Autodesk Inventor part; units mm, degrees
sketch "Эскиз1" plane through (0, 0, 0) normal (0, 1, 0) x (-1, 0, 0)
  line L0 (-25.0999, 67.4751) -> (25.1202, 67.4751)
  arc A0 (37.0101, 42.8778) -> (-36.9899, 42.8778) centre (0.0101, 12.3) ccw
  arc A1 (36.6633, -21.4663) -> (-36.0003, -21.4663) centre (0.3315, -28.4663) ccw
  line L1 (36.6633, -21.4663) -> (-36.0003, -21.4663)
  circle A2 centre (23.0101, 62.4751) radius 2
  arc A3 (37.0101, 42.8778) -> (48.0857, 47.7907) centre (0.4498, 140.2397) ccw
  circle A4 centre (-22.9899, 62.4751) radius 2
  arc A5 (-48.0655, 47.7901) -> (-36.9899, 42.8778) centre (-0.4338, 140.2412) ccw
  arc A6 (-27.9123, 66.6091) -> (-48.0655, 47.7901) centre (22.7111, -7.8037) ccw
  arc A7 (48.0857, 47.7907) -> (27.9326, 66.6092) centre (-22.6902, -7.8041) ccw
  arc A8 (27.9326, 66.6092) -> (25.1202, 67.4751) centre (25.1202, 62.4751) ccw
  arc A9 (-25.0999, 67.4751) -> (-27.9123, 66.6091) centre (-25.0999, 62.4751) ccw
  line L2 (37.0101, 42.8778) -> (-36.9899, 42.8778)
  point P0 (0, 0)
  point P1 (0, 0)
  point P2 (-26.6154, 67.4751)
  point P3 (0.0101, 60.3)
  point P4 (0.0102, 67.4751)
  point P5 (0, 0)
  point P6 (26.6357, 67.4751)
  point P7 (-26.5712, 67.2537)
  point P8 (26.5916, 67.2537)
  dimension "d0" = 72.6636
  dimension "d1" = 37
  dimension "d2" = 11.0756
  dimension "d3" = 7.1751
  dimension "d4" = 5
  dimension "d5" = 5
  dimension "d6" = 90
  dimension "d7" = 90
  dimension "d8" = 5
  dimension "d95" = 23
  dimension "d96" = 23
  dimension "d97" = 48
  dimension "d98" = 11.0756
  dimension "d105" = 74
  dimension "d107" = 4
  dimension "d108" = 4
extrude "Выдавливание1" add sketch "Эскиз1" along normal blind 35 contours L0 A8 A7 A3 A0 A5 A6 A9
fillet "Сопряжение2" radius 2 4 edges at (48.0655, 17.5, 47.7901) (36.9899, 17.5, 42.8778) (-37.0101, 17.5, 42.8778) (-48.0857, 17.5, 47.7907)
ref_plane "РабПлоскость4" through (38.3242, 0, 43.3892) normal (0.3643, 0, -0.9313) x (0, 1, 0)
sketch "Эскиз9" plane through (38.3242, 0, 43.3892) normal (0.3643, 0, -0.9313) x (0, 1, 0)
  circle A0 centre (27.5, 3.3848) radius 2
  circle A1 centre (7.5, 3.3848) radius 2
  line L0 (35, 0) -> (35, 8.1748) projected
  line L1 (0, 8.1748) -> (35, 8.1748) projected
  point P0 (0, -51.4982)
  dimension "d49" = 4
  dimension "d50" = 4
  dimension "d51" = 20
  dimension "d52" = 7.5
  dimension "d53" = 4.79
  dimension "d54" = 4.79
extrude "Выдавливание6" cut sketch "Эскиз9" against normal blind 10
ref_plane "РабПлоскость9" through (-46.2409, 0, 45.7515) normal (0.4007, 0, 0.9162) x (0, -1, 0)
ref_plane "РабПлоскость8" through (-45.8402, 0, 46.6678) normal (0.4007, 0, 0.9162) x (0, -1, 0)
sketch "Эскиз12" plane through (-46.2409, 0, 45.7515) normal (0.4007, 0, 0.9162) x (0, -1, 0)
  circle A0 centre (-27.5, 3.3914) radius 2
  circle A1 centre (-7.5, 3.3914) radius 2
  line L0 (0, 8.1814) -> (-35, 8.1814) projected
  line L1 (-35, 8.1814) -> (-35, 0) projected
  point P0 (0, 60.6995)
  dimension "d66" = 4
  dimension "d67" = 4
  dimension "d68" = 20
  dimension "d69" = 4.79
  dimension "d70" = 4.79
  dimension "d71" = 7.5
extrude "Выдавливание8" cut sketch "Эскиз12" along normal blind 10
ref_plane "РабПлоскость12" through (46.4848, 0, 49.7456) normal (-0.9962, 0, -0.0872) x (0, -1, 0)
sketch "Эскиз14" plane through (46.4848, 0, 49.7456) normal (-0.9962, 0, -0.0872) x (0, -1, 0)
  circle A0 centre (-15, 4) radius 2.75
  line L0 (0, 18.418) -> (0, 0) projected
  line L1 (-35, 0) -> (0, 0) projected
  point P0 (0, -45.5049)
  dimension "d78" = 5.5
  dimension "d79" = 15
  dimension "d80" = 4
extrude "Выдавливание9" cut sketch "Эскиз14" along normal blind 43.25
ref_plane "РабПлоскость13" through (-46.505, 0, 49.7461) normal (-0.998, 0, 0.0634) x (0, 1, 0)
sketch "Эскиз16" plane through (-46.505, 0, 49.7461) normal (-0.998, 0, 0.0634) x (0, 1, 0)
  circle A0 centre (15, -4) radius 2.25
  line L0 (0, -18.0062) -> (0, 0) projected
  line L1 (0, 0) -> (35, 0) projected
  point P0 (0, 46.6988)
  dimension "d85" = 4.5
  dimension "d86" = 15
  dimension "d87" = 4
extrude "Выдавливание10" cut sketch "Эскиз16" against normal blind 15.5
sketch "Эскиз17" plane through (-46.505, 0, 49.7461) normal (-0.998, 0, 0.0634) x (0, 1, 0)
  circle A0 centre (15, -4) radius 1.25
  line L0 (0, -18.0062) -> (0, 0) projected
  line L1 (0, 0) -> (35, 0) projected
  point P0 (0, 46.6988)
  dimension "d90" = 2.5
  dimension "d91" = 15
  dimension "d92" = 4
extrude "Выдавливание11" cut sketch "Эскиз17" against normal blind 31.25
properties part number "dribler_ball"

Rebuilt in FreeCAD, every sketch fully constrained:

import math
import FreeCAD as App
import Part
import Sketcher

V = App.Vector
Q = App.Units.Quantity


def edges_at(feature, points):
    """Names of the edges that pass closest to the given points."""
    edges = feature.Shape.Edges
    near = lambda p: min(range(len(edges)), key=lambda i: edges[i].distToShape(Part.Vertex(*p))[0])
    return sorted({f"Edge{near(p) + 1}" for p in points})

doc = App.newDocument("Part")
body = doc.addObject("PartDesign::Body", "Body")

# Sketch on XZ plane
sketch1 = body.newObject("Sketcher::SketchObject", "Sketch")
sketch1.AttachmentSupport = (doc.getObject("XZ_Plane"), [""])
sketch1.MapMode = "FlatFace"
sketch1.addGeometry([
    Part.LineSegment(V(-25.1202, 67.4751, 0), V(25.0999, 67.4751, 0)),  # 0
    Part.ArcOfCircle(Part.Circle(V(25.0999, 62.4751, 0), V(0, 0, 1), 5), math.radians(55.772169), math.radians(90)),  # 1
    Part.ArcOfCircle(Part.Circle(V(-22.71173, -7.804488, 0), V(0, 0, 1), 90.00097), math.radians(38.149171), math.radians(55.7723)),  # 2
    Part.ArcOfCircle(Part.Circle(V(0.436632, 140.235287, 0), V(0, 0, 1), 103.993373), math.radians(-69.421147), math.radians(-62.741934)),  # 3
    Part.ArcOfCircle(Part.Circle(V(-0.0101, 12.3, 0), V(0, 0, 1), 48.000019), math.radians(39.571247), math.radians(140.428753)),  # 4
    Part.ArcOfCircle(Part.Circle(V(-0.449016, 140.241617, 0), V(0, 0, 1), 104.002046), math.radians(-117.260448), math.radians(-110.581658)),  # 5
    Part.ArcOfCircle(Part.Circle(V(22.6902, -7.8041, 0), V(0, 0, 1), 90.000054), math.radians(124.227155), math.radians(141.8502)),  # 6
    Part.ArcOfCircle(Part.Circle(V(-25.1202, 62.4751, 0), V(0, 0, 1), 5.000038), math.radians(90), math.radians(124.227187)),  # 7
    Part.Circle(V(22.9899, 62.4751, 0), V(0, 0, 1), 2),  # 8
    Part.Circle(V(-23.0101, 62.4751, 0), V(0, 0, 1), 2),  # 9
], False)
sketch1.addConstraint([
    Sketcher.Constraint("Tangent", 0, 2, 1, 2),
    Sketcher.Constraint("Tangent", 1, 1, 2, 2),
    Sketcher.Constraint("Coincident", 2, 1, 3, 2),
    Sketcher.Constraint("Coincident", 3, 1, 4, 1),
    Sketcher.Constraint("Coincident", 4, 2, 5, 2),
    Sketcher.Constraint("Coincident", 5, 1, 6, 2),
    Sketcher.Constraint("Tangent", 6, 1, 7, 2),
    Sketcher.Constraint("Tangent", 7, 1, 0, 1),
    Sketcher.Constraint("Horizontal", 0),
    Sketcher.Constraint("Equal", 1, 7),
    Sketcher.Constraint("Equal", 8, 9),
    Sketcher.Constraint("Horizontal", 7, 3, 8, 3),
    Sketcher.Constraint("Horizontal", 8, 3, 9, 3),
    Sketcher.Constraint("Horizontal", 3, 1, 4, 2),
    Sketcher.Constraint("Diameter", 8, Q("4 mm")),
    Sketcher.Constraint("Radius", 1, Q("5 mm")),
    Sketcher.Constraint("Radius", 4, Q("48 mm")),
    Sketcher.Constraint("Radius", 6, Q("90 mm")),
    Sketcher.Constraint("DistanceX", 4, 3, 8, 3, Q("23 mm")),
    Sketcher.Constraint("DistanceX", 9, 3, 4, 3, Q("23 mm")),
    Sketcher.Constraint("DistanceX", 4, 2, 4, 3, Q("37 mm")),
    Sketcher.Constraint("Radius", 2, Q("90.001 mm")),
    Sketcher.Constraint("Radius", 5, Q("104.002 mm")),
    Sketcher.Constraint("DistanceX", 0, 1, 0, 2, Q("50.22 mm")),
    Sketcher.Constraint("DistanceX", -1, 1, 1, 3, Q("25.1 mm")),
    Sketcher.Constraint("DistanceY", -1, 1, 4, 3, Q("12.3 mm")),
    Sketcher.Constraint("Radius", 3, Q("103.9934 mm")),
    Sketcher.Constraint("DistanceX", 3, 1, 2, 1, Q("11.0756 mm")),
    Sketcher.Constraint("DistanceX", 5, 1, 4, 2, Q("11.0756 mm")),
    Sketcher.Constraint("DistanceX", 4, 3, -1, 1, Q("0.01 mm")),
    Sketcher.Constraint("DistanceY", -1, 1, 1, 3, Q("62.475 mm")),
    Sketcher.Constraint("DistanceX", 5, 3, -1, 1, Q("0.449 mm")),
    Sketcher.Constraint("DistanceY", 2, 3, 5, 3, Q("148.046 mm")),
])
pad1 = body.newObject("PartDesign::Pad", "Pad")
pad1.Profile = sketch1
pad1.Length = 35
pad1.Reversed = True
doc.recompute()

fillet = body.newObject("PartDesign::Fillet", "Fillet")
fillet.Base = (pad1, edges_at(pad1, [
    (48.066, 17.5, 47.79),
    (36.99, 17.5, 42.878),
    (-37.01, 17.5, 42.878),
    (-48.086, 17.5, 47.791),
]))
fillet.Radius = 2

# Sketch on an angled plane
sketch2 = body.newObject("Sketcher::SketchObject", "Sketch001")
sketch2.Placement = App.Placement(V(38.3242, 0, 43.3892), App.Rotation(V(0, 1, 0), V(0.931284084, 0, 0.364293774), V(0.364293774, 0, -0.931284084), "ZXY"))
sketch2.addGeometry([
    Part.Circle(V(27.5, 3.3848, 0), V(0, 0, 1), 2),
    Part.Circle(V(7.5, 3.3848, 0), V(0, 0, 1), 2),
], False)
sketch2.addConstraint([
    Sketcher.Constraint("Equal", 0, 1),
    Sketcher.Constraint("Horizontal", 0, 3, 1, 3),
    Sketcher.Constraint("Diameter", 0, Q("4 mm")),
    Sketcher.Constraint("DistanceX", 1, 3, 0, 3, Q("20 mm")),
    Sketcher.Constraint("DistanceX", -1, 1, 1, 3, Q("7.5 mm")),
    Sketcher.Constraint("DistanceY", -1, 1, 0, 3, Q("3.3848 mm")),
])
pocket1 = body.newObject("PartDesign::Pocket", "Pocket")
pocket1.Profile = sketch2
pocket1.Length = 10

# Sketch on an angled plane
sketch3 = body.newObject("Sketcher::SketchObject", "Sketch002")
sketch3.Placement = App.Placement(V(-46.2409, 0, 45.7515), App.Rotation(V(0, -1, 0), V(0.91620782, 0, -0.40070342), V(0.40070342, 0, 0.91620782), "ZXY"))
sketch3.addGeometry([
    Part.Circle(V(-27.5, 3.3914, 0), V(0, 0, 1), 2),
    Part.Circle(V(-7.5, 3.3914, 0), V(0, 0, 1), 2),
], False)
sketch3.addConstraint([
    Sketcher.Constraint("Equal", 0, 1),
    Sketcher.Constraint("Horizontal", 0, 3, 1, 3),
    Sketcher.Constraint("Diameter", 0, Q("4 mm")),
    Sketcher.Constraint("DistanceX", 0, 3, 1, 3, Q("20 mm")),
    Sketcher.Constraint("DistanceX", 1, 3, -1, 1, Q("7.5 mm")),
    Sketcher.Constraint("DistanceY", -1, 1, 0, 3, Q("3.3914 mm")),
])
pocket2 = body.newObject("PartDesign::Pocket", "Pocket001")
pocket2.Profile = sketch3
pocket2.Length = 10
pocket2.Reversed = True

# Sketch on an angled plane
sketch4 = body.newObject("Sketcher::SketchObject", "Sketch003")
sketch4.Placement = App.Placement(V(46.4848, 0, 49.7456), App.Rotation(V(0, -1, 0), V(-0.087155743, 0, 0.996194698), V(-0.996194698, 0, -0.087155743), "ZXY"))
sketch4.addGeometry(Part.Circle(V(-15, 4, 0), V(0, 0, 1), 2.75), False)
sketch4.addConstraint([
    Sketcher.Constraint("Diameter", 0, Q("5.5 mm")),
    Sketcher.Constraint("DistanceX", 0, 3, -1, 1, Q("15 mm")),
    Sketcher.Constraint("DistanceY", -1, 1, 0, 3, Q("4 mm")),
])
pocket3 = body.newObject("PartDesign::Pocket", "Pocket002")
pocket3.Profile = sketch4
pocket3.Length = 43.25
pocket3.Reversed = True

# Sketch on an angled plane
sketch5 = body.newObject("Sketcher::SketchObject", "Sketch004")
sketch5.Placement = App.Placement(V(-46.505, 0, 49.7461), App.Rotation(V(0, 1, 0), V(-0.063399253, 0, -0.997988244), V(-0.997988244, 0, 0.063399253), "ZXY"))
sketch5.addGeometry(Part.Circle(V(15, -4, 0), V(0, 0, 1), 2.25), False)
sketch5.addConstraint([
    Sketcher.Constraint("Diameter", 0, Q("4.5 mm")),
    Sketcher.Constraint("DistanceX", -1, 1, 0, 3, Q("15 mm")),
    Sketcher.Constraint("DistanceY", 0, 3, -1, 1, Q("4 mm")),
])
pocket4 = body.newObject("PartDesign::Pocket", "Pocket003")
pocket4.Profile = sketch5
pocket4.Length = 15.5

# Sketch on an angled plane
sketch6 = body.newObject("Sketcher::SketchObject", "Sketch005")
sketch6.Placement = App.Placement(V(-46.505, 0, 49.7461), App.Rotation(V(0, 1, 0), V(-0.063399253, 0, -0.997988244), V(-0.997988244, 0, 0.063399253), "ZXY"))
sketch6.addGeometry(Part.Circle(V(15, -4, 0), V(0, 0, 1), 1.25), False)
sketch6.addConstraint([
    Sketcher.Constraint("Diameter", 0, Q("2.5 mm")),
    Sketcher.Constraint("DistanceX", -1, 1, 0, 3, Q("15 mm")),
    Sketcher.Constraint("DistanceY", 0, 3, -1, 1, Q("4 mm")),
])
pocket5 = body.newObject("PartDesign::Pocket", "Pocket004")
pocket5.Profile = sketch6
pocket5.Length = 31.25

doc.recompute()
